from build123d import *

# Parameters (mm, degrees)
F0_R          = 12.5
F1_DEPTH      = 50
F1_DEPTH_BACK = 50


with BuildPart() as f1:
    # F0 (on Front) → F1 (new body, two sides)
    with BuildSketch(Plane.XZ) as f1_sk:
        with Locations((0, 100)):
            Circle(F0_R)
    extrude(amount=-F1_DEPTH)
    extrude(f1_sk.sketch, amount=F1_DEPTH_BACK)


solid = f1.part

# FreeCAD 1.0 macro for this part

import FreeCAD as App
import Part
import Sketcher

V = App.Vector
Q = App.Units.Quantity

doc = App.newDocument("Part")
body = doc.addObject("PartDesign::Body", "Body")

# Sketch on XZ plane
sketch1 = body.newObject("Sketcher::SketchObject", "Sketch")
sketch1.AttachmentSupport = (doc.getObject("XZ_Plane"), [""])
sketch1.MapMode = "FlatFace"
sketch1.addGeometry(Part.Circle(V(0, 100, 0), V(0, 0, 1), 12.5), False)
sketch1.addConstraint(Sketcher.Constraint("PointOnObject", 0, 3, -2))
sketch1.addConstraint(Sketcher.Constraint("Diameter", 0, Q("25 mm")))
sketch1.addConstraint(Sketcher.Constraint("DistanceY", -1, 1, 0, 3, Q("100 mm")))
pad1 = body.newObject("PartDesign::Pad", "Pad")
pad1.Profile = sketch1
pad1.Type = "TwoLengths"
pad1.Length = 50
pad1.Length2 = 50
pad1.Reversed = True

doc.recompute()
